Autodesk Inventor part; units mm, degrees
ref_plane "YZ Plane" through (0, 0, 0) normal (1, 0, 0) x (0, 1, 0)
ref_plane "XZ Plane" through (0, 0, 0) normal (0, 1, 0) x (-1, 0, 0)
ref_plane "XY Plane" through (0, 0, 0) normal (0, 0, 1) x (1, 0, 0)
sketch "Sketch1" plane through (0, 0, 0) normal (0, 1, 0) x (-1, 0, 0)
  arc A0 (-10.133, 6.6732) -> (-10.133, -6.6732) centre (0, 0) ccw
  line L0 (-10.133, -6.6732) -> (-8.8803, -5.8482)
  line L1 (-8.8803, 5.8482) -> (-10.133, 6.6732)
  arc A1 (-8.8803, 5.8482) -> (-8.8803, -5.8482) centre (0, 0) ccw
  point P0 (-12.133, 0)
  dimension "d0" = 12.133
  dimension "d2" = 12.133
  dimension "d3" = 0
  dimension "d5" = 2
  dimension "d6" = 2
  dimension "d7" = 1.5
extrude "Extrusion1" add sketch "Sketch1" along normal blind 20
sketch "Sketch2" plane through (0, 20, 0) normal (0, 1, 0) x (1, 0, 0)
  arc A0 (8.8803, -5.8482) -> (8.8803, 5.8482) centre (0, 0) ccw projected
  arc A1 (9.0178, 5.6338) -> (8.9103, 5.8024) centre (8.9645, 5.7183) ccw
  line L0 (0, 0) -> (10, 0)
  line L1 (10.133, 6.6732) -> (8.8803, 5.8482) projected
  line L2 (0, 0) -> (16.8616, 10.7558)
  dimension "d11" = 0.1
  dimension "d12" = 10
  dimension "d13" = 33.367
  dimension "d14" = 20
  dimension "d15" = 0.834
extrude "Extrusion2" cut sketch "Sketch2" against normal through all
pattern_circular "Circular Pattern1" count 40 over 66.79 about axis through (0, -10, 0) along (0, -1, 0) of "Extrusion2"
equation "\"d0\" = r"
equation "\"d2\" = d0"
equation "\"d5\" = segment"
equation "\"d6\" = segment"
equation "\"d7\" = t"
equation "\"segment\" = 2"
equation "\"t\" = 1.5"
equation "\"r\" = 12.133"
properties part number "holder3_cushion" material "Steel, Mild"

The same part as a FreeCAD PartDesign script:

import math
import FreeCAD as App
import Part
import Sketcher
from FreeCAD import Vector

doc = App.newDocument("Part")
body = doc.addObject("PartDesign::Body", "Body")

sketch1 = body.newObject("Sketcher::SketchObject", "Sketch")
sketch1.AttachmentSupport = (doc.getObject("XZ_Plane"), [""])
sketch1.MapMode = "FlatFace"
sketch1.addGeometry([
    Part.LineSegment(Vector(8.8803, 5.8482, 0), Vector(10.133, 6.6732, 0)),
    Part.ArcOfCircle(Part.Circle(Vector(0, 0, 0), Vector(0, 0, 1), 12.132983), math.radians(-33.367347), math.radians(33.367347)),
    Part.LineSegment(Vector(10.133, -6.6732, 0), Vector(8.8803, -5.8482, 0)),
    Part.ArcOfCircle(Part.Circle(Vector(0, 0, 0), Vector(0, 0, 1), 10.633023), math.radians(-33.367255), math.radians(33.367255)),
], False)
sketch1.addConstraint([
    Sketcher.Constraint("Coincident", 0, 2, 1, 2),
    Sketcher.Constraint("Coincident", 1, 1, 2, 1),
    Sketcher.Constraint("Coincident", 2, 2, 3, 1),
    Sketcher.Constraint("Coincident", 3, 2, 0, 1),
    Sketcher.Constraint("Coincident", 1, 3, -1, 1),
    Sketcher.Constraint("Coincident", 3, 3, -1, 1),
    Sketcher.Constraint("Vertical", 0, 2, 1, 1),
    Sketcher.Constraint("Vertical", 2, 2, 3, 2),
    Sketcher.Constraint("Radius", 1, 12.133),
    Sketcher.Constraint("Distance", 0, 1.5),
    Sketcher.Constraint("DistanceX", -1, 1, 0, 2, 10.133),
    Sketcher.Constraint("DistanceY", 1, 1, 2, 2, 0.825),
])
pad1 = body.newObject("PartDesign::Pad", "Pad")
pad1.Profile = sketch1
pad1.Length = 20
pad1.Reversed = True

sketch2 = body.newObject("Sketcher::SketchObject", "Sketch001")
sketch2.AttachmentSupport = (doc.getObject("XZ_Plane"), [""])
sketch2.MapMode = "FlatFace"
sketch2.AttachmentOffset = App.Placement(Vector(0, 0, -20), App.Rotation())
sketch2.addGeometry([
    Part.ArcOfCircle(Part.Circle(Vector(8.9645, -5.7183, 0), Vector(0, 0, 1), 0.099906), math.radians(-122.800601), math.radians(57.757532)),
    Part.ArcOfCircle(Part.Circle(Vector(0, 0, 0), Vector(0, 0, 1), 10.633023), math.radians(-33.072232), math.radians(-31.994759)),
], False)
sketch2.addConstraint([
    Sketcher.Constraint("Coincident", 0, 1, 1, 1),
    Sketcher.Constraint("Coincident", 1, 2, 0, 2),
    Sketcher.Constraint("Coincident", 1, 3, -1, 1),
    Sketcher.Constraint("Radius", 0, 0.1),
    Sketcher.Constraint("Radius", 1, 10.633),
    Sketcher.Constraint("DistanceY", 0, 1, 0, 3, 0.084),
    Sketcher.Constraint("DistanceX", -1, 1, 0, 3, 8.9645),
])
pocket1 = body.newObject("PartDesign::Pocket", "Pocket")
pocket1.Profile = sketch2
pocket1.Type = "ThroughAll"
pocket1.Reversed = True
doc.recompute()

polarpattern = body.newObject("PartDesign::PolarPattern", "PolarPattern")
polarpattern.Originals = [pocket1]
polarpattern.Axis = (doc.getObject("Y_Axis"), [""])
polarpattern.Angle = 66.79
polarpattern.Occurrences = 40
polarpattern.Reversed = True
body.Tip = polarpattern

doc.recompute()
